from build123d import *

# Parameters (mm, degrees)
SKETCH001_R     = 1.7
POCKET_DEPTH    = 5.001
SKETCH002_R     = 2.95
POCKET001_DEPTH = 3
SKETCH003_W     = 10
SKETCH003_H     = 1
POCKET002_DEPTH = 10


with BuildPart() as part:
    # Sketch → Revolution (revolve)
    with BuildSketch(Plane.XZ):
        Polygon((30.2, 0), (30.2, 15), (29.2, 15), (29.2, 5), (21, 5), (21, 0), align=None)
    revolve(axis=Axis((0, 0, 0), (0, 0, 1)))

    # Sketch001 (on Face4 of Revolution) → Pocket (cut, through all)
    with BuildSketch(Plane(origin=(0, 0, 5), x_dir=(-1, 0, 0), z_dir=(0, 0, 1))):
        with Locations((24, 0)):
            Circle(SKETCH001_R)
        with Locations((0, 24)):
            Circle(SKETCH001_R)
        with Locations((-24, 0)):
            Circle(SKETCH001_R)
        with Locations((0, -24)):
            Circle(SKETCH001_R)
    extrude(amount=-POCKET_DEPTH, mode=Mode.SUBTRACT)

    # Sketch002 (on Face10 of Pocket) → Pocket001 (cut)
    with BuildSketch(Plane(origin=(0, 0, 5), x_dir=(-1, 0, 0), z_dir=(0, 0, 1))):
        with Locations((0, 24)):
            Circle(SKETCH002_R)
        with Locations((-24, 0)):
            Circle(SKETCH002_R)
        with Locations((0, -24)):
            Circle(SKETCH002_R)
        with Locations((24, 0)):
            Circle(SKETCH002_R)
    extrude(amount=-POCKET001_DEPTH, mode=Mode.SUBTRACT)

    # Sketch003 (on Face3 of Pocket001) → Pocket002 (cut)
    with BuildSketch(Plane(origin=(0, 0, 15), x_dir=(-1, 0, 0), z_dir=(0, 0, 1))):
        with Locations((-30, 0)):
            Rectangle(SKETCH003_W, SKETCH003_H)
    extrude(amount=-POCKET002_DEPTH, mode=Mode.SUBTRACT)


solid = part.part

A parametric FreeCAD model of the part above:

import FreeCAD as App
import Part
import Sketcher
from FreeCAD import Vector


def add_polygon(sketch, points):
    """Adds a closed chain of lines whose ends are joined by coincident constraints."""
    first, n = sketch.GeometryCount, len(points)
    for a, b in zip(points, points[1:] + points[:1]):
        sketch.addGeometry(Part.LineSegment(App.Vector(*a, 0), App.Vector(*b, 0)), False)
    for i in range(n):
        sketch.addConstraint(Sketcher.Constraint("Coincident", first + i, 2, first + (i + 1) % n, 1))

doc = App.newDocument("Part")
body = doc.addObject("PartDesign::Body", "Body")

sketch1 = body.newObject("Sketcher::SketchObject", "Sketch")
sketch1.AttachmentSupport = (doc.getObject("XZ_Plane"), [""])
sketch1.MapMode = "FlatFace"
add_polygon(sketch1, [(30.2, 0), (30.2, 15), (29.2, 15), (29.2, 5), (21, 5), (21, 0)])
sketch1.addConstraint([
    Sketcher.Constraint("Vertical", 0),
    Sketcher.Constraint("Horizontal", 1),
    Sketcher.Constraint("Vertical", 2),
    Sketcher.Constraint("Horizontal", 3),
    Sketcher.Constraint("Vertical", 4),
    Sketcher.Constraint("Horizontal", 5),
    Sketcher.Constraint("PointOnObject", 4, 2, -1),
    Sketcher.Constraint("DistanceX", 1, 2, 1, 1, 1.0),
    Sketcher.Constraint("DistanceY", 0, 1, 0, 2, 15.0),
    Sketcher.Constraint("DistanceY", 2, 2, 2, 1, 10.0),
    Sketcher.Constraint("DistanceX", 3, 2, 3, 1, 8.2),
    Sketcher.Constraint("DistanceX", -1, 1, 3, 2, 21.0),
])
revolution = body.newObject("PartDesign::Revolution", "Revolution")
revolution.Profile = sketch1
revolution.ReferenceAxis = (sketch1, ["V_Axis"])
revolution.Angle = 360

sketch2 = body.newObject("Sketcher::SketchObject", "Sketch001")
sketch2.AttachmentSupport = (doc.getObject("XY_Plane"), [""])
sketch2.MapMode = "FlatFace"
sketch2.AttachmentOffset = App.Placement(Vector(0, 0, 5), App.Rotation())
sketch2.addGeometry([
    Part.Circle(Vector(-24, 0, 0), Vector(0, 0, 1), 1.7),
    Part.Circle(Vector(0, -24, 0), Vector(0, 0, 1), 1.7),
    Part.Circle(Vector(24, 0, 0), Vector(0, 0, 1), 1.7),
    Part.Circle(Vector(0, 24, 0), Vector(0, 0, 1), 1.7),
], False)
sketch2.addConstraint([
    Sketcher.Constraint("Equal", 0, 1),
    Sketcher.Constraint("Equal", 1, 2),
    Sketcher.Constraint("Equal", 2, 3),
    Sketcher.Constraint("Symmetric", 0, 3, 2, 3, -1, 1),
    Sketcher.Constraint("Symmetric", 1, 3, 3, 3, -1, 1),
    Sketcher.Constraint("PointOnObject", 0, 3, -1),
    Sketcher.Constraint("PointOnObject", 1, 3, -2),
    Sketcher.Constraint("Diameter", 0, 3.4),
    Sketcher.Constraint("DistanceX", 0, 3, -1, 1, 24.0),
    Sketcher.Constraint("DistanceY", 1, 3, -1, 1, 24.0),
])
pocket1 = body.newObject("PartDesign::Pocket", "Pocket")
pocket1.Profile = sketch2
pocket1.Type = "ThroughAll"

sketch3 = body.newObject("Sketcher::SketchObject", "Sketch002")
sketch3.AttachmentSupport = (doc.getObject("XY_Plane"), [""])
sketch3.MapMode = "FlatFace"
sketch3.AttachmentOffset = App.Placement(Vector(0, 0, 5), App.Rotation())
sketch3.addGeometry([
    Part.Circle(Vector(0, -24, 0), Vector(0, 0, 1), 3),
    Part.Circle(Vector(24, 0, 0), Vector(0, 0, 1), 3),
    Part.Circle(Vector(0, 24, 0), Vector(0, 0, 1), 3),
    Part.Circle(Vector(-24, 0, 0), Vector(0, 0, 1), 3),
], False)
sketch3.addConstraint([
    Sketcher.Constraint("Equal", 0, 1),
    Sketcher.Constraint("Equal", 1, 2),
    Sketcher.Constraint("Equal", 2, 3),
    Sketcher.Constraint("Symmetric", 0, 3, 2, 3, -1, 1),
    Sketcher.Constraint("Symmetric", 1, 3, 3, 3, -1, 1),
    Sketcher.Constraint("PointOnObject", 0, 3, -2),
    Sketcher.Constraint("PointOnObject", 1, 3, -1),
    Sketcher.Constraint("Diameter", 0, 5.9),
    Sketcher.Constraint("DistanceY", 0, 3, -1, 1, 24.0),
    Sketcher.Constraint("DistanceX", -1, 1, 1, 3, 24.0),
])
pocket2 = body.newObject("PartDesign::Pocket", "Pocket001")
pocket2.Profile = sketch3
pocket2.Length = 3

sketch4 = body.newObject("Sketcher::SketchObject", "Sketch003")
sketch4.AttachmentSupport = (doc.getObject("XY_Plane"), [""])
sketch4.MapMode = "FlatFace"
sketch4.AttachmentOffset = App.Placement(Vector(0, 0, 15), App.Rotation())
add_polygon(sketch4, [(35, -0.5), (35, 0.5), (25, 0.5), (25, -0.5)])
sketch4.addConstraint([
    Sketcher.Constraint("Vertical", 0),
    Sketcher.Constraint("Horizontal", 1),
    Sketcher.Constraint("Vertical", 2),
    Sketcher.Constraint("Horizontal", 3),
    Sketcher.Constraint("DistanceX", 1, 2, 1, 1, 10.0),
    Sketcher.Constraint("DistanceY", 0, 1, 0, 2, 1.0),
    Sketcher.Constraint("DistanceX", -1, 1, 0, 2, 35.0),
    Sketcher.Constraint("DistanceY", -1, 1, 0, 2, 0.5),
])
pocket3 = body.newObject("PartDesign::Pocket", "Pocket002")
pocket3.Profile = sketch4
pocket3.Length = 10

doc.recompute()
